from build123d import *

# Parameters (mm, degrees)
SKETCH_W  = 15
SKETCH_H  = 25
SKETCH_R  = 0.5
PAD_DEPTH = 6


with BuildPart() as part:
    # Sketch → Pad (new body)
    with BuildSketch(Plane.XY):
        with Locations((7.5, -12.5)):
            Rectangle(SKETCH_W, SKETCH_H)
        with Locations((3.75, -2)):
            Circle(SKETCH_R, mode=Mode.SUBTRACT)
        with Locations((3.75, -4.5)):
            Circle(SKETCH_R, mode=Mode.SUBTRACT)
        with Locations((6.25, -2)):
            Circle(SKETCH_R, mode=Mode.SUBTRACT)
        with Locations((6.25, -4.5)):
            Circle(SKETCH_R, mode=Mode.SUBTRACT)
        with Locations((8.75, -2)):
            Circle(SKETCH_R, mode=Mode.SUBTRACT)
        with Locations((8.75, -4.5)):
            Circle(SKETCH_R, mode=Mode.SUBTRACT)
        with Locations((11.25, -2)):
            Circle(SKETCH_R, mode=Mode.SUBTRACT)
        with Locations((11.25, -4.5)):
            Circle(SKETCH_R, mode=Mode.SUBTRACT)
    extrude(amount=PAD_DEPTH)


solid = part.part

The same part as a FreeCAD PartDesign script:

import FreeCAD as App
import Part
import Sketcher

doc = App.newDocument("Part")
body = doc.addObject("PartDesign::Body", "Body")

sketch1 = body.newObject("Sketcher::SketchObject", "Sketch")
sketch1.AttachmentSupport = (doc.getObject("XY_Plane"), [""])
sketch1.MapMode = "FlatFace"
sketch1.addGeometry([
    Part.LineSegment(App.Vector(0, 0, 0), App.Vector(0, -25, 0)),
    Part.LineSegment(App.Vector(0, -25, 0), App.Vector(15, -25, 0)),
    Part.LineSegment(App.Vector(15, -25, 0), App.Vector(15, 0, 0)),
    Part.LineSegment(App.Vector(15, 0, 0), App.Vector(0, 0, 0)),
    Part.Circle(App.Vector(3.75, -4.5, 0), App.Vector(0, 0, 1), 0.5),
    Part.Circle(App.Vector(6.25, -4.5, 0), App.Vector(0, 0, 1), 0.5),
    Part.Circle(App.Vector(8.75, -4.5, 0), App.Vector(0, 0, 1), 0.5),
    Part.Circle(App.Vector(11.25, -4.5, 0), App.Vector(0, 0, 1), 0.5),
    Part.Circle(App.Vector(3.75, -2, 0), App.Vector(0, 0, 1), 0.5),
    Part.Circle(App.Vector(6.25, -2, 0), App.Vector(0, 0, 1), 0.5),
    Part.Circle(App.Vector(8.75, -2, 0), App.Vector(0, 0, 1), 0.5),
    Part.Circle(App.Vector(11.25, -2, 0), App.Vector(0, 0, 1), 0.5),
], False)
sketch1.addConstraint([
    Sketcher.Constraint("Coincident", 0, 2, 1, 1),
    Sketcher.Constraint("Coincident", 1, 2, 2, 1),
    Sketcher.Constraint("Coincident", 2, 2, 3, 1),
    Sketcher.Constraint("Coincident", 3, 2, 0, 1),
    Sketcher.Constraint("Vertical", 0),
    Sketcher.Constraint("Horizontal", 1),
    Sketcher.Constraint("Vertical", 2),
    Sketcher.Constraint("Horizontal", 3),
    Sketcher.Constraint("Coincident", 3, 2, -1, 1),
    Sketcher.Constraint("Equal", 4, 5),
    Sketcher.Constraint("Equal", 5, 6),
    Sketcher.Constraint("Equal", 6, 7),
    Sketcher.Constraint("Equal", 7, 8),
    Sketcher.Constraint("Equal", 8, 9),
    Sketcher.Constraint("Equal", 9, 10),
    Sketcher.Constraint("Equal", 10, 11),
    Sketcher.Constraint("Horizontal", 4, 3, 5, 3),
    Sketcher.Constraint("Horizontal", 5, 3, 6, 3),
    Sketcher.Constraint("Horizontal", 6, 3, 7, 3),
    Sketcher.Constraint("Horizontal", 8, 3, 9, 3),
    Sketcher.Constraint("Horizontal", 9, 3, 10, 3),
    Sketcher.Constraint("Horizontal", 10, 3, 11, 3),
    Sketcher.Constraint("Vertical", 4, 3, 8, 3),
    Sketcher.Constraint("Vertical", 5, 3, 9, 3),
    Sketcher.Constraint("Vertical", 6, 3, 10, 3),
    Sketcher.Constraint("Vertical", 7, 3, 11, 3),
    Sketcher.Constraint("Diameter", 4, 1.0),
    Sketcher.Constraint("DistanceX", 1, 1, 1, 2, 15.0),
    Sketcher.Constraint("DistanceY", 0, 2, 0, 1, 25.0),
    Sketcher.Constraint("DistanceY", 8, 3, -1, 1, 2.0),
    Sketcher.Constraint("DistanceX", 4, 3, 6, 3, 5.0),
    Sketcher.Constraint("DistanceX", 5, 3, 7, 3, 5.0),
    Sketcher.Constraint("DistanceY", 4, 3, -1, 1, 4.5),
    Sketcher.Constraint("DistanceX", 4, 3, 5, 3, 2.5),
    Sketcher.Constraint("DistanceX", -1, 1, 4, 3, 3.75),
])
pad1 = body.newObject("PartDesign::Pad", "Pad")
pad1.Profile = sketch1
pad1.Length = 6

doc.recompute()
